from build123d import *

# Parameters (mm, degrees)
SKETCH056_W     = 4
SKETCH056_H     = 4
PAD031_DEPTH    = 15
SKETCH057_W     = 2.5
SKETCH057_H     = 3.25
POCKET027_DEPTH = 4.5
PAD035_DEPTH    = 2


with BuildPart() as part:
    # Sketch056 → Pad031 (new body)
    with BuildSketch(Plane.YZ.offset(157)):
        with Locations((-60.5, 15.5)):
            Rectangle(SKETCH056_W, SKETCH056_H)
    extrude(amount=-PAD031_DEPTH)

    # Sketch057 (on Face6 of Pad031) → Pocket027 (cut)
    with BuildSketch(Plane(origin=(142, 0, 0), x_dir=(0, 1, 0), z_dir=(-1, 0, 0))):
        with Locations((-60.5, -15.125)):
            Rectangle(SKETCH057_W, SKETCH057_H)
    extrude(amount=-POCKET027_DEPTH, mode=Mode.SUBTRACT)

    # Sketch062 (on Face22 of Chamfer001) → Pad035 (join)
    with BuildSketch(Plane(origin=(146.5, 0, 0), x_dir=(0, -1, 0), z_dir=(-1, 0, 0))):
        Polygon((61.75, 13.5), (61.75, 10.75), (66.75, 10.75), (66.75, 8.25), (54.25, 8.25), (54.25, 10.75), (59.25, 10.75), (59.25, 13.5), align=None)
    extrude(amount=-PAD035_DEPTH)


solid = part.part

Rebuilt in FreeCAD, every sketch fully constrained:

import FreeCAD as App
import Part
import Sketcher


def add_polygon(sketch, points):
    """Adds a closed chain of lines whose ends are joined by coincident constraints."""
    first, n = sketch.GeometryCount, len(points)
    for a, b in zip(points, points[1:] + points[:1]):
        sketch.addGeometry(Part.LineSegment(App.Vector(*a, 0), App.Vector(*b, 0)), False)
    for i in range(n):
        sketch.addConstraint(Sketcher.Constraint("Coincident", first + i, 2, first + (i + 1) % n, 1))

doc = App.newDocument("Part")
body = doc.addObject("PartDesign::Body", "Body")

# Sketch on YZ plane
sketch1 = body.newObject("Sketcher::SketchObject", "Sketch")
sketch1.AttachmentSupport = (doc.getObject("YZ_Plane"), [""])
sketch1.MapMode = "FlatFace"
sketch1.AttachmentOffset = App.Placement(App.Vector(0, 0, 157), App.Rotation())
add_polygon(sketch1, [(-62.5, 17.5), (-62.5, 13.5), (-58.5, 13.5), (-58.5, 17.5)])  # lines 0-3
sketch1.addConstraint([
    Sketcher.Constraint("Vertical", 0),
    Sketcher.Constraint("Horizontal", 1),
    Sketcher.Constraint("Vertical", 2),
    Sketcher.Constraint("Horizontal", 3),
    Sketcher.Constraint("Equal", 3, 0),
    Sketcher.Constraint("DistanceX", 1, 1, 1, 2, 4.0),
    Sketcher.Constraint("DistanceX", 0, 2, -1, 1, 62.5),
    Sketcher.Constraint("DistanceY", -1, 1, 0, 2, 13.5),
])
pad1 = body.newObject("PartDesign::Pad", "Pad")
pad1.Profile = sketch1
pad1.Length = 15
pad1.Reversed = True

# Sketch on YZ plane
sketch2 = body.newObject("Sketcher::SketchObject", "Sketch001")
sketch2.AttachmentSupport = (doc.getObject("YZ_Plane"), [""])
sketch2.MapMode = "FlatFace"
sketch2.AttachmentOffset = App.Placement(App.Vector(0, 0, 142), App.Rotation())
add_polygon(sketch2, [(-61.8, 13.5), (-61.8, 16.8), (-59.2, 16.8), (-59.2, 13.5)])  # lines 0-3
sketch2.addConstraint([
    Sketcher.Constraint("Vertical", 0),
    Sketcher.Constraint("Horizontal", 1),
    Sketcher.Constraint("Vertical", 2),
    Sketcher.Constraint("Horizontal", 3),
    Sketcher.Constraint("DistanceX", 1, 1, 1, 2, 2.5),
    Sketcher.Constraint("DistanceY", 0, 1, 0, 2, 3.25),
    Sketcher.Constraint("DistanceY", -1, 1, 2, 2, 13.5),
    Sketcher.Constraint("DistanceX", 0, 2, -1, 1, 61.75),
])
pocket1 = body.newObject("PartDesign::Pocket", "Pocket")
pocket1.Profile = sketch2
pocket1.Length = 4.5
pocket1.Reversed = True

# Sketch on YZ plane
sketch3 = body.newObject("Sketcher::SketchObject", "Sketch002")
sketch3.AttachmentSupport = (doc.getObject("YZ_Plane"), [""])
sketch3.MapMode = "FlatFace"
sketch3.AttachmentOffset = App.Placement(App.Vector(0, 0, 146.5), App.Rotation())
add_polygon(sketch3, [(-61.8, 10.8), (-61.8, 13.5), (-59.2, 13.5), (-59.2, 10.8), (-54.2, 10.8), (-54.2, 8.2), (-66.8, 8.2), (-66.8, 10.8)])  # lines 0-7
sketch3.addConstraint([
    Sketcher.Constraint("Vertical", 0),
    Sketcher.Constraint("Horizontal", 1),
    Sketcher.Constraint("Vertical", 2),
    Sketcher.Constraint("Horizontal", 3),
    Sketcher.Constraint("Vertical", 4),
    Sketcher.Constraint("Horizontal", 5),
    Sketcher.Constraint("Vertical", 6),
    Sketcher.Constraint("Horizontal", 7),
    Sketcher.Constraint("Horizontal", 3, 2, 6, 2),
    Sketcher.Constraint("Equal", 3, 7),
    Sketcher.Constraint("Equal", 1, 4),
    Sketcher.Constraint("DistanceX", 3, 1, 3, 2, 5.0),
    Sketcher.Constraint("DistanceX", 1, 1, 1, 2, 2.5),
    Sketcher.Constraint("DistanceY", 0, 1, 0, 2, 2.75),
    Sketcher.Constraint("DistanceY", -1, 1, 0, 2, 13.5),
    Sketcher.Constraint("DistanceX", 0, 2, -1, 1, 61.75),
])
pad2 = body.newObject("PartDesign::Pad", "Pad001")
pad2.Profile = sketch3
pad2.Length = 2

doc.recompute()
